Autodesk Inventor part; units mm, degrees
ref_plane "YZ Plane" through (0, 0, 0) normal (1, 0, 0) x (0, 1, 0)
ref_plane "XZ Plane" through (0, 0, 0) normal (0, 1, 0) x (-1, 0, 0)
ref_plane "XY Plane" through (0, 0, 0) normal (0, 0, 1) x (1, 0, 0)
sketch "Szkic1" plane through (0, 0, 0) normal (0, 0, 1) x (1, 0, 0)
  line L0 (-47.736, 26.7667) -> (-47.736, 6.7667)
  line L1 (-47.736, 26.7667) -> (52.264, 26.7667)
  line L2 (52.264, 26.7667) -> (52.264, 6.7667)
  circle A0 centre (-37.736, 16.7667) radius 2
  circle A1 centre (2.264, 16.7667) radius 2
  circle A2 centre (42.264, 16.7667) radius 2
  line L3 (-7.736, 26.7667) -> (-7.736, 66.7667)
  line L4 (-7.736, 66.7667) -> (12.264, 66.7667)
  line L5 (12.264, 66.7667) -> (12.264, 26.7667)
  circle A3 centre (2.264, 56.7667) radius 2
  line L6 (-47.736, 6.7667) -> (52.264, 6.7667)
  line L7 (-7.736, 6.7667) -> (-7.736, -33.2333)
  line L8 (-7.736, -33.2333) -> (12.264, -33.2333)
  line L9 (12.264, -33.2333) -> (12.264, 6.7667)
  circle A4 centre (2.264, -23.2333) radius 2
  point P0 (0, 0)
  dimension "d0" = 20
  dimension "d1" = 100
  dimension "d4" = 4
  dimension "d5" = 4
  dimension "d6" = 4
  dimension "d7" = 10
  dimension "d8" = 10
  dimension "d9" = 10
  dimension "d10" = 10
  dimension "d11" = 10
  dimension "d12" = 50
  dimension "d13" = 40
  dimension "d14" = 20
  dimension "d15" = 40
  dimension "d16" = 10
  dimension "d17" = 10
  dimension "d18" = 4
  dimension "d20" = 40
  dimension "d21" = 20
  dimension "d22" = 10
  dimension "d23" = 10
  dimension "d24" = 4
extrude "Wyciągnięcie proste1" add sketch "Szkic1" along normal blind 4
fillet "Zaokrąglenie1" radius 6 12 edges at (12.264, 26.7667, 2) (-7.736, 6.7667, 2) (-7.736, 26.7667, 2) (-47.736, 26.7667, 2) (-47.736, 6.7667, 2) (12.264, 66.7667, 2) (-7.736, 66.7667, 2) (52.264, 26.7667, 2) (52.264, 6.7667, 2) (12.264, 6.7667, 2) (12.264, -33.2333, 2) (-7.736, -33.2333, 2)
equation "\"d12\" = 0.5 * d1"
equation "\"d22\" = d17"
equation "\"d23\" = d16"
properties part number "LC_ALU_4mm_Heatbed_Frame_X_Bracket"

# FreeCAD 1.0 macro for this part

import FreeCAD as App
import Part
import Sketcher

V = App.Vector


def edges_at(feature, points):
    """Names of the edges that pass closest to the given points."""
    edges = feature.Shape.Edges
    near = lambda p: min(range(len(edges)), key=lambda i: edges[i].distToShape(Part.Vertex(*p))[0])
    return sorted({f"Edge{near(p) + 1}" for p in points})

doc = App.newDocument("Part")
body = doc.addObject("PartDesign::Body", "Body")

sketch1 = body.newObject("Sketcher::SketchObject", "Sketch")
sketch1.AttachmentSupport = (doc.getObject("XY_Plane"), [""])
sketch1.MapMode = "FlatFace"
sketch1.addGeometry([
    Part.LineSegment(V(-7.7, 26.8, 0), V(-47.7, 26.8, 0)),
    Part.LineSegment(V(-47.7, 26.8, 0), V(-47.7, 6.8, 0)),
    Part.LineSegment(V(-47.7, 6.8, 0), V(-7.7, 6.8, 0)),
    Part.LineSegment(V(-7.7, 6.8, 0), V(-7.7, -33.2, 0)),
    Part.LineSegment(V(-7.7, -33.2, 0), V(12.3, -33.2, 0)),
    Part.LineSegment(V(12.3, -33.2, 0), V(12.3, 6.8, 0)),
    Part.LineSegment(V(12.3, 6.8, 0), V(52.3, 6.8, 0)),
    Part.LineSegment(V(52.3, 6.8, 0), V(52.3, 26.8, 0)),
    Part.LineSegment(V(52.3, 26.8, 0), V(12.3, 26.8, 0)),
    Part.LineSegment(V(12.3, 26.8, 0), V(12.3, 66.8, 0)),
    Part.LineSegment(V(12.3, 66.8, 0), V(-7.7, 66.8, 0)),
    Part.LineSegment(V(-7.7, 66.8, 0), V(-7.7, 26.8, 0)),
    Part.Circle(V(-37.7, 16.8, 0), V(0, 0, 1), 2),
    Part.Circle(V(2.3, 16.8, 0), V(0, 0, 1), 2),
    Part.Circle(V(42.3, 16.8, 0), V(0, 0, 1), 2),
    Part.Circle(V(2.3, 56.8, 0), V(0, 0, 1), 2),
    Part.Circle(V(2.3, -23.2, 0), V(0, 0, 1), 2),
], False)
sketch1.addConstraint([
    Sketcher.Constraint("Coincident", 0, 2, 1, 1),
    Sketcher.Constraint("Coincident", 1, 2, 2, 1),
    Sketcher.Constraint("Coincident", 2, 2, 3, 1),
    Sketcher.Constraint("Coincident", 3, 2, 4, 1),
    Sketcher.Constraint("Coincident", 4, 2, 5, 1),
    Sketcher.Constraint("Coincident", 5, 2, 6, 1),
    Sketcher.Constraint("Coincident", 6, 2, 7, 1),
    Sketcher.Constraint("Coincident", 7, 2, 8, 1),
    Sketcher.Constraint("Coincident", 8, 2, 9, 1),
    Sketcher.Constraint("Coincident", 9, 2, 10, 1),
    Sketcher.Constraint("Coincident", 10, 2, 11, 1),
    Sketcher.Constraint("Coincident", 11, 2, 0, 1),
    Sketcher.Constraint("Horizontal", 0),
    Sketcher.Constraint("Vertical", 1),
    Sketcher.Constraint("Horizontal", 2),
    Sketcher.Constraint("Vertical", 3),
    Sketcher.Constraint("Horizontal", 4),
    Sketcher.Constraint("Vertical", 5),
    Sketcher.Constraint("Horizontal", 6),
    Sketcher.Constraint("Vertical", 7),
    Sketcher.Constraint("Horizontal", 8),
    Sketcher.Constraint("Vertical", 9),
    Sketcher.Constraint("Horizontal", 10),
    Sketcher.Constraint("Vertical", 11),
    Sketcher.Constraint("Equal", 12, 13),
    Sketcher.Constraint("Equal", 13, 14),
    Sketcher.Constraint("Equal", 14, 15),
    Sketcher.Constraint("Equal", 15, 16),
    Sketcher.Constraint("Horizontal", 12, 3, 13, 3),
    Sketcher.Constraint("Horizontal", 13, 3, 14, 3),
    Sketcher.Constraint("Horizontal", 2, 2, 5, 2),
    Sketcher.Constraint("Horizontal", 0, 2, 7, 2),
    Sketcher.Constraint("Vertical", 13, 3, 15, 3),
    Sketcher.Constraint("Vertical", 15, 3, 16, 3),
    Sketcher.Constraint("Vertical", 5, 2, 8, 2),
    Sketcher.Constraint("Vertical", 3, 2, 10, 2),
    Sketcher.Constraint("Equal", 2, 6),
    Sketcher.Constraint("Equal", 10, 1),
    Sketcher.Constraint("Equal", 8, 3),
    Sketcher.Constraint("Equal", 5, 9),
    Sketcher.Constraint("Diameter", 12, 4.0),
    Sketcher.Constraint("DistanceX", 0, 2, 0, 1, 40.0),
    Sketcher.Constraint("DistanceX", 4, 1, 4, 2, 20.0),
    Sketcher.Constraint("DistanceX", 12, 3, 13, 3, 40.0),
    Sketcher.Constraint("DistanceX", 13, 3, 14, 3, 40.0),
    Sketcher.Constraint("DistanceY", 13, 3, 15, 3, 40.0),
    Sketcher.Constraint("DistanceY", 16, 3, 13, 3, 40.0),
    Sketcher.Constraint("DistanceX", 0, 2, 12, 3, 10.0),
    Sketcher.Constraint("DistanceY", 12, 3, 0, 2, 10.0),
    Sketcher.Constraint("DistanceX", 12, 3, -1, 1, 37.736),
    Sketcher.Constraint("DistanceY", -1, 1, 12, 3, 16.7667),
])
pad1 = body.newObject("PartDesign::Pad", "Pad")
pad1.Profile = sketch1
pad1.Length = 4
doc.recompute()

fillet = body.newObject("PartDesign::Fillet", "Fillet")
fillet.Base = (pad1, edges_at(pad1, [
    (12.264, 26.767, 2),
    (-7.736, 6.767, 2),
    (-7.736, 26.767, 2),
    (-47.736, 26.767, 2),
    (-47.736, 6.767, 2),
    (12.264, 66.767, 2),
    (-7.736, 66.767, 2),
    (52.264, 26.767, 2),
    (52.264, 6.767, 2),
    (12.264, 6.767, 2),
    (12.264, -33.233, 2),
    (-7.736, -33.233, 2),
]))
fillet.Radius = 6

doc.recompute()
